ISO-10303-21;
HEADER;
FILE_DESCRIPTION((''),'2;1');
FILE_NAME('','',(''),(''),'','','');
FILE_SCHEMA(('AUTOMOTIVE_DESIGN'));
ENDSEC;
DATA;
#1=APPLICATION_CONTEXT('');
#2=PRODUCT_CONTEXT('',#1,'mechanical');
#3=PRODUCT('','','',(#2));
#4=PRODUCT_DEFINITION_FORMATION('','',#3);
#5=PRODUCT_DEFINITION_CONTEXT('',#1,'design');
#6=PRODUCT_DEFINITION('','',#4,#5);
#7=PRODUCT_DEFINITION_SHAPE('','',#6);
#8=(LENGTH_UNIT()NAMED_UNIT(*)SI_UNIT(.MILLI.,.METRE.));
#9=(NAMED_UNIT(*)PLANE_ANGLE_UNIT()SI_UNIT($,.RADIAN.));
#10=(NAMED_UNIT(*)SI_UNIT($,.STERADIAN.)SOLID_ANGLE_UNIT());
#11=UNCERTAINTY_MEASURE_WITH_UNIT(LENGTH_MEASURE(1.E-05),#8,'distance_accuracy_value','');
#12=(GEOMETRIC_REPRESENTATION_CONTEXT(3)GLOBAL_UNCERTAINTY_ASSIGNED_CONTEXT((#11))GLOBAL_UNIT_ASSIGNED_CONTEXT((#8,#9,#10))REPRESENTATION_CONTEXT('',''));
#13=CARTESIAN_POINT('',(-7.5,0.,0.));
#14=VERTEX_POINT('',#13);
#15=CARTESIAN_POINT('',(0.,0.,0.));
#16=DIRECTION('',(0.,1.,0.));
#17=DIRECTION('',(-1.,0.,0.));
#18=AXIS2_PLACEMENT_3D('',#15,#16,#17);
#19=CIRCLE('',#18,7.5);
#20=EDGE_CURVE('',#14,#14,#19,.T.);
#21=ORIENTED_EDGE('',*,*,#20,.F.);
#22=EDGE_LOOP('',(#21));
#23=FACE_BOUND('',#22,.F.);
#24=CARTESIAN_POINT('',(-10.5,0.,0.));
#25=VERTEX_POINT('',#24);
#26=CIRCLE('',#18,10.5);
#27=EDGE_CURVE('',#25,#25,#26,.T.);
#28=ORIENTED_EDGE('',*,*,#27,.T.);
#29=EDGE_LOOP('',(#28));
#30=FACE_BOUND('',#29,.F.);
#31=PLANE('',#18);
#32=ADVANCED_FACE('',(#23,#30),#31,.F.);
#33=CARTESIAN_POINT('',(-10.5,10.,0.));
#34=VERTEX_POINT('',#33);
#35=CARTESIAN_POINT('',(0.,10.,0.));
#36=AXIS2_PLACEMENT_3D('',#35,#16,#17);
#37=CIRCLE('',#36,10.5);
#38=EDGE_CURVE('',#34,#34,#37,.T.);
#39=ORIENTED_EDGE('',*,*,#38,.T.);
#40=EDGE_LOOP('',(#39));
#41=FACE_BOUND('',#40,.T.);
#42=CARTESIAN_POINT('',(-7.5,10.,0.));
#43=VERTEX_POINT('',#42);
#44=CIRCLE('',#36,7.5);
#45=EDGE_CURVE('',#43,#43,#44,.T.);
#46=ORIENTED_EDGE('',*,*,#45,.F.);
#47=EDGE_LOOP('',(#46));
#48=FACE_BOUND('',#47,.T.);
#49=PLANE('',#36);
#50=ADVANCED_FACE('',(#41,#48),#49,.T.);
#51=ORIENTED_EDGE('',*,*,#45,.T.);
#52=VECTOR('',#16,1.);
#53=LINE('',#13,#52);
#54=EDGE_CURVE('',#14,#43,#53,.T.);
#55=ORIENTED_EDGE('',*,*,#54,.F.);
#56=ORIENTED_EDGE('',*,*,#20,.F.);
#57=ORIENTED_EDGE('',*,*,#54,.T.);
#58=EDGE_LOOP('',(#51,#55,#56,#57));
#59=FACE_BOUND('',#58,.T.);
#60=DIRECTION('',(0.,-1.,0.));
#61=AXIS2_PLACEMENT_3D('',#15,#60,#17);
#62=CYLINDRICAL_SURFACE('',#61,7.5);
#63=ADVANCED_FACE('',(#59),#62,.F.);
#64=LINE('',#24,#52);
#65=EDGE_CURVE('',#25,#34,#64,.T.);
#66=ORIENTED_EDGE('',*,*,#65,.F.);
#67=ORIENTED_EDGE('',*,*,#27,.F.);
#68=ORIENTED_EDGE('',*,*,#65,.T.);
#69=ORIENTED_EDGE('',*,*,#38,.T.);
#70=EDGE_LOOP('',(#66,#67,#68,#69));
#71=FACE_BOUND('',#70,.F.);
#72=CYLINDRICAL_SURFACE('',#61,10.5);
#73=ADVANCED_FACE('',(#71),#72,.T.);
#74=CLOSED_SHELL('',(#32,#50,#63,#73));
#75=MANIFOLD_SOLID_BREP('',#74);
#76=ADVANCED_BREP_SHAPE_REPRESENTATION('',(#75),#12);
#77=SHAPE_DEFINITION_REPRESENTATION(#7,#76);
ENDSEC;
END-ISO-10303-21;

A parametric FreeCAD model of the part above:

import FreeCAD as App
import Part
import Sketcher
from FreeCAD import Vector

doc = App.newDocument("Part")
body = doc.addObject("PartDesign::Body", "Body")

sketch1 = body.newObject("Sketcher::SketchObject", "Sketch")
sketch1.AttachmentSupport = (doc.getObject("XZ_Plane"), [""])
sketch1.MapMode = "FlatFace"
sketch1.addGeometry([
    Part.Circle(Vector(0, 0, 0), Vector(0, 0, 1), 10),
    Part.Circle(Vector(0, 0, 0), Vector(0, 0, 1), 8),
], False)
sketch1.addConstraint([
    Sketcher.Constraint("Coincident", 0, 3, -1, 1),
    Sketcher.Constraint("Coincident", 1, 3, -1, 1),
    Sketcher.Constraint("Diameter", 0, 21.0),
    Sketcher.Constraint("Diameter", 1, 15.0),
])
pad1 = body.newObject("PartDesign::Pad", "Pad")
pad1.Profile = sketch1
pad1.Length = 10
pad1.Reversed = True

doc.recompute()
